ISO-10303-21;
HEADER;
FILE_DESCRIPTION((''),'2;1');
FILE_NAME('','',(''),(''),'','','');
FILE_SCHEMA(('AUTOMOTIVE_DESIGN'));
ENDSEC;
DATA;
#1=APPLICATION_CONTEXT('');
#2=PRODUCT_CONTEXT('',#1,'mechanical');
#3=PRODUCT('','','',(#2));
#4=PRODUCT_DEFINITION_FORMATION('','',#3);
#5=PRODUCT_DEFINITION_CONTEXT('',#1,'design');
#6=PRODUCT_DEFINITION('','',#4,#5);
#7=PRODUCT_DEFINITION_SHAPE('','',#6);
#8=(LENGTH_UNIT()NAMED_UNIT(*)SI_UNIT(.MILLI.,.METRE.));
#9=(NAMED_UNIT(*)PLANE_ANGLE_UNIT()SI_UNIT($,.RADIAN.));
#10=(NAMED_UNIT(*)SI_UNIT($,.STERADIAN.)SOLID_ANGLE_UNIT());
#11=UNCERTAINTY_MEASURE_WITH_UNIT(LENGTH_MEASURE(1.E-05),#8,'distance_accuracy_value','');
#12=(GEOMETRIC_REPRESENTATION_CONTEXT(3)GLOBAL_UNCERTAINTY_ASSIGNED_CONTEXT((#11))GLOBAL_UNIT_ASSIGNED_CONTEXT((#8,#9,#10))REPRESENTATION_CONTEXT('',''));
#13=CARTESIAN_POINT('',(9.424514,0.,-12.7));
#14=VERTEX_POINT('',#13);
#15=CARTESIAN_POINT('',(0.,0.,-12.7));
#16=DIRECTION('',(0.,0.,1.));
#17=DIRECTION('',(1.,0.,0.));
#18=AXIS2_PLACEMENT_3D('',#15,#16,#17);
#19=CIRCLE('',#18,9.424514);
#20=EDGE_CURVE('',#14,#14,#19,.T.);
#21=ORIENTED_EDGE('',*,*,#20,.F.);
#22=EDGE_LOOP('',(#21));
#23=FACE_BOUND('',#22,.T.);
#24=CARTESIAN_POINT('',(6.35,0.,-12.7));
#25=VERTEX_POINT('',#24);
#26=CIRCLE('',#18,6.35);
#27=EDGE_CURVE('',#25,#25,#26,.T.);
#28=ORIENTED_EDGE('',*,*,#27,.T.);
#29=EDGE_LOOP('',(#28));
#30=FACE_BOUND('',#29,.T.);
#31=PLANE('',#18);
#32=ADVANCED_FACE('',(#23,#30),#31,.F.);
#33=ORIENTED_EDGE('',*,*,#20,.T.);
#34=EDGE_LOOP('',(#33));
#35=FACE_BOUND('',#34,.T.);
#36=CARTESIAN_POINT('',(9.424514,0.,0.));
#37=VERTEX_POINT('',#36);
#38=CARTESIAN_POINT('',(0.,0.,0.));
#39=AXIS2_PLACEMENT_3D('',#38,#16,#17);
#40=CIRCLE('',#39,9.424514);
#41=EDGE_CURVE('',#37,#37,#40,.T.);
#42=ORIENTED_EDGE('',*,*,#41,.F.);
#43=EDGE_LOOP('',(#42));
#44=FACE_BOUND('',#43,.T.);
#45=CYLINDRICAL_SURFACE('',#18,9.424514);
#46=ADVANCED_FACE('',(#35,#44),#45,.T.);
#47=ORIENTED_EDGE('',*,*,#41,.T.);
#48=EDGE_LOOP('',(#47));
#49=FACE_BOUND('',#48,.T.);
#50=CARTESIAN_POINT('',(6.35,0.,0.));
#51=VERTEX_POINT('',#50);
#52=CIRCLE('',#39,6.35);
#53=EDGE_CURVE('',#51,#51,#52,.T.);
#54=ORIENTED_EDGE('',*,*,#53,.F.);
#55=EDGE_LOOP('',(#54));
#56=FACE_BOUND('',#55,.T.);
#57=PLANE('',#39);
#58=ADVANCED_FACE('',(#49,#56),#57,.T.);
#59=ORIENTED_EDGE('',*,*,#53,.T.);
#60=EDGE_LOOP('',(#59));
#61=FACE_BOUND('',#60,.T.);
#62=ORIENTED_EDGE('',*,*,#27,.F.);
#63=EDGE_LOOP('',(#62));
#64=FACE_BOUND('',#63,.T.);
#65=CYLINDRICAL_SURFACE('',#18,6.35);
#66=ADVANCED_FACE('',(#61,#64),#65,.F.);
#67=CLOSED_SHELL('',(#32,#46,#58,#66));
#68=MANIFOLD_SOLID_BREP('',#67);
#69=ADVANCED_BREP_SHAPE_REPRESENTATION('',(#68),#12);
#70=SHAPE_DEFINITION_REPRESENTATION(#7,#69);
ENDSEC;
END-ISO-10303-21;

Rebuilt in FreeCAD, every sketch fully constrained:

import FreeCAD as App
import Part
import Sketcher
from FreeCAD import Vector
Q = App.Units.Quantity

doc = App.newDocument("Part")
params = doc.addObject("Spreadsheet::Sheet", "Params")
for row, (alias, value) in enumerate([
    ("sketch1_diameter", "0.5 in"),
    ("pad1_length", "0.5 in"),
], start=1):
    params.set(f"A{row}", alias)
    params.set(f"B{row}", "=" + value)
    params.setAlias(f"B{row}", alias)

body = doc.addObject("PartDesign::Body", "Body")

sketch1 = doc.addObject("Sketcher::SketchObject", "Sketch")
body.addObject(sketch1)
sketch1.AttachmentSupport = (doc.XY_Plane, [""])
sketch1.MapMode = "FlatFace"
sketch1.addGeometry([
    Part.Circle(Vector(0, 0, 0), Vector(0, 0, 1), 9),
    Part.Circle(Vector(0, 0, 0), Vector(0, 0, 1), 6),
], False)
sketch1.addConstraint([
    Sketcher.Constraint("Coincident", 0, 3, -1, 1),
    Sketcher.Constraint("Coincident", 1, 3, -1, 1),
    Sketcher.Constraint("Diameter", 1, Q("0.5 in")),
    Sketcher.Constraint("Diameter", 0, Q("18.849028 mm")),
])
sketch1.setExpression("Constraints[2]", "Params.sketch1_diameter")
pad1 = doc.addObject("PartDesign::Pad", "Pad")
body.addObject(pad1)
pad1.Profile = sketch1
pad1.setExpression("Length", "Params.pad1_length")
pad1.Reversed = True

doc.recompute()
